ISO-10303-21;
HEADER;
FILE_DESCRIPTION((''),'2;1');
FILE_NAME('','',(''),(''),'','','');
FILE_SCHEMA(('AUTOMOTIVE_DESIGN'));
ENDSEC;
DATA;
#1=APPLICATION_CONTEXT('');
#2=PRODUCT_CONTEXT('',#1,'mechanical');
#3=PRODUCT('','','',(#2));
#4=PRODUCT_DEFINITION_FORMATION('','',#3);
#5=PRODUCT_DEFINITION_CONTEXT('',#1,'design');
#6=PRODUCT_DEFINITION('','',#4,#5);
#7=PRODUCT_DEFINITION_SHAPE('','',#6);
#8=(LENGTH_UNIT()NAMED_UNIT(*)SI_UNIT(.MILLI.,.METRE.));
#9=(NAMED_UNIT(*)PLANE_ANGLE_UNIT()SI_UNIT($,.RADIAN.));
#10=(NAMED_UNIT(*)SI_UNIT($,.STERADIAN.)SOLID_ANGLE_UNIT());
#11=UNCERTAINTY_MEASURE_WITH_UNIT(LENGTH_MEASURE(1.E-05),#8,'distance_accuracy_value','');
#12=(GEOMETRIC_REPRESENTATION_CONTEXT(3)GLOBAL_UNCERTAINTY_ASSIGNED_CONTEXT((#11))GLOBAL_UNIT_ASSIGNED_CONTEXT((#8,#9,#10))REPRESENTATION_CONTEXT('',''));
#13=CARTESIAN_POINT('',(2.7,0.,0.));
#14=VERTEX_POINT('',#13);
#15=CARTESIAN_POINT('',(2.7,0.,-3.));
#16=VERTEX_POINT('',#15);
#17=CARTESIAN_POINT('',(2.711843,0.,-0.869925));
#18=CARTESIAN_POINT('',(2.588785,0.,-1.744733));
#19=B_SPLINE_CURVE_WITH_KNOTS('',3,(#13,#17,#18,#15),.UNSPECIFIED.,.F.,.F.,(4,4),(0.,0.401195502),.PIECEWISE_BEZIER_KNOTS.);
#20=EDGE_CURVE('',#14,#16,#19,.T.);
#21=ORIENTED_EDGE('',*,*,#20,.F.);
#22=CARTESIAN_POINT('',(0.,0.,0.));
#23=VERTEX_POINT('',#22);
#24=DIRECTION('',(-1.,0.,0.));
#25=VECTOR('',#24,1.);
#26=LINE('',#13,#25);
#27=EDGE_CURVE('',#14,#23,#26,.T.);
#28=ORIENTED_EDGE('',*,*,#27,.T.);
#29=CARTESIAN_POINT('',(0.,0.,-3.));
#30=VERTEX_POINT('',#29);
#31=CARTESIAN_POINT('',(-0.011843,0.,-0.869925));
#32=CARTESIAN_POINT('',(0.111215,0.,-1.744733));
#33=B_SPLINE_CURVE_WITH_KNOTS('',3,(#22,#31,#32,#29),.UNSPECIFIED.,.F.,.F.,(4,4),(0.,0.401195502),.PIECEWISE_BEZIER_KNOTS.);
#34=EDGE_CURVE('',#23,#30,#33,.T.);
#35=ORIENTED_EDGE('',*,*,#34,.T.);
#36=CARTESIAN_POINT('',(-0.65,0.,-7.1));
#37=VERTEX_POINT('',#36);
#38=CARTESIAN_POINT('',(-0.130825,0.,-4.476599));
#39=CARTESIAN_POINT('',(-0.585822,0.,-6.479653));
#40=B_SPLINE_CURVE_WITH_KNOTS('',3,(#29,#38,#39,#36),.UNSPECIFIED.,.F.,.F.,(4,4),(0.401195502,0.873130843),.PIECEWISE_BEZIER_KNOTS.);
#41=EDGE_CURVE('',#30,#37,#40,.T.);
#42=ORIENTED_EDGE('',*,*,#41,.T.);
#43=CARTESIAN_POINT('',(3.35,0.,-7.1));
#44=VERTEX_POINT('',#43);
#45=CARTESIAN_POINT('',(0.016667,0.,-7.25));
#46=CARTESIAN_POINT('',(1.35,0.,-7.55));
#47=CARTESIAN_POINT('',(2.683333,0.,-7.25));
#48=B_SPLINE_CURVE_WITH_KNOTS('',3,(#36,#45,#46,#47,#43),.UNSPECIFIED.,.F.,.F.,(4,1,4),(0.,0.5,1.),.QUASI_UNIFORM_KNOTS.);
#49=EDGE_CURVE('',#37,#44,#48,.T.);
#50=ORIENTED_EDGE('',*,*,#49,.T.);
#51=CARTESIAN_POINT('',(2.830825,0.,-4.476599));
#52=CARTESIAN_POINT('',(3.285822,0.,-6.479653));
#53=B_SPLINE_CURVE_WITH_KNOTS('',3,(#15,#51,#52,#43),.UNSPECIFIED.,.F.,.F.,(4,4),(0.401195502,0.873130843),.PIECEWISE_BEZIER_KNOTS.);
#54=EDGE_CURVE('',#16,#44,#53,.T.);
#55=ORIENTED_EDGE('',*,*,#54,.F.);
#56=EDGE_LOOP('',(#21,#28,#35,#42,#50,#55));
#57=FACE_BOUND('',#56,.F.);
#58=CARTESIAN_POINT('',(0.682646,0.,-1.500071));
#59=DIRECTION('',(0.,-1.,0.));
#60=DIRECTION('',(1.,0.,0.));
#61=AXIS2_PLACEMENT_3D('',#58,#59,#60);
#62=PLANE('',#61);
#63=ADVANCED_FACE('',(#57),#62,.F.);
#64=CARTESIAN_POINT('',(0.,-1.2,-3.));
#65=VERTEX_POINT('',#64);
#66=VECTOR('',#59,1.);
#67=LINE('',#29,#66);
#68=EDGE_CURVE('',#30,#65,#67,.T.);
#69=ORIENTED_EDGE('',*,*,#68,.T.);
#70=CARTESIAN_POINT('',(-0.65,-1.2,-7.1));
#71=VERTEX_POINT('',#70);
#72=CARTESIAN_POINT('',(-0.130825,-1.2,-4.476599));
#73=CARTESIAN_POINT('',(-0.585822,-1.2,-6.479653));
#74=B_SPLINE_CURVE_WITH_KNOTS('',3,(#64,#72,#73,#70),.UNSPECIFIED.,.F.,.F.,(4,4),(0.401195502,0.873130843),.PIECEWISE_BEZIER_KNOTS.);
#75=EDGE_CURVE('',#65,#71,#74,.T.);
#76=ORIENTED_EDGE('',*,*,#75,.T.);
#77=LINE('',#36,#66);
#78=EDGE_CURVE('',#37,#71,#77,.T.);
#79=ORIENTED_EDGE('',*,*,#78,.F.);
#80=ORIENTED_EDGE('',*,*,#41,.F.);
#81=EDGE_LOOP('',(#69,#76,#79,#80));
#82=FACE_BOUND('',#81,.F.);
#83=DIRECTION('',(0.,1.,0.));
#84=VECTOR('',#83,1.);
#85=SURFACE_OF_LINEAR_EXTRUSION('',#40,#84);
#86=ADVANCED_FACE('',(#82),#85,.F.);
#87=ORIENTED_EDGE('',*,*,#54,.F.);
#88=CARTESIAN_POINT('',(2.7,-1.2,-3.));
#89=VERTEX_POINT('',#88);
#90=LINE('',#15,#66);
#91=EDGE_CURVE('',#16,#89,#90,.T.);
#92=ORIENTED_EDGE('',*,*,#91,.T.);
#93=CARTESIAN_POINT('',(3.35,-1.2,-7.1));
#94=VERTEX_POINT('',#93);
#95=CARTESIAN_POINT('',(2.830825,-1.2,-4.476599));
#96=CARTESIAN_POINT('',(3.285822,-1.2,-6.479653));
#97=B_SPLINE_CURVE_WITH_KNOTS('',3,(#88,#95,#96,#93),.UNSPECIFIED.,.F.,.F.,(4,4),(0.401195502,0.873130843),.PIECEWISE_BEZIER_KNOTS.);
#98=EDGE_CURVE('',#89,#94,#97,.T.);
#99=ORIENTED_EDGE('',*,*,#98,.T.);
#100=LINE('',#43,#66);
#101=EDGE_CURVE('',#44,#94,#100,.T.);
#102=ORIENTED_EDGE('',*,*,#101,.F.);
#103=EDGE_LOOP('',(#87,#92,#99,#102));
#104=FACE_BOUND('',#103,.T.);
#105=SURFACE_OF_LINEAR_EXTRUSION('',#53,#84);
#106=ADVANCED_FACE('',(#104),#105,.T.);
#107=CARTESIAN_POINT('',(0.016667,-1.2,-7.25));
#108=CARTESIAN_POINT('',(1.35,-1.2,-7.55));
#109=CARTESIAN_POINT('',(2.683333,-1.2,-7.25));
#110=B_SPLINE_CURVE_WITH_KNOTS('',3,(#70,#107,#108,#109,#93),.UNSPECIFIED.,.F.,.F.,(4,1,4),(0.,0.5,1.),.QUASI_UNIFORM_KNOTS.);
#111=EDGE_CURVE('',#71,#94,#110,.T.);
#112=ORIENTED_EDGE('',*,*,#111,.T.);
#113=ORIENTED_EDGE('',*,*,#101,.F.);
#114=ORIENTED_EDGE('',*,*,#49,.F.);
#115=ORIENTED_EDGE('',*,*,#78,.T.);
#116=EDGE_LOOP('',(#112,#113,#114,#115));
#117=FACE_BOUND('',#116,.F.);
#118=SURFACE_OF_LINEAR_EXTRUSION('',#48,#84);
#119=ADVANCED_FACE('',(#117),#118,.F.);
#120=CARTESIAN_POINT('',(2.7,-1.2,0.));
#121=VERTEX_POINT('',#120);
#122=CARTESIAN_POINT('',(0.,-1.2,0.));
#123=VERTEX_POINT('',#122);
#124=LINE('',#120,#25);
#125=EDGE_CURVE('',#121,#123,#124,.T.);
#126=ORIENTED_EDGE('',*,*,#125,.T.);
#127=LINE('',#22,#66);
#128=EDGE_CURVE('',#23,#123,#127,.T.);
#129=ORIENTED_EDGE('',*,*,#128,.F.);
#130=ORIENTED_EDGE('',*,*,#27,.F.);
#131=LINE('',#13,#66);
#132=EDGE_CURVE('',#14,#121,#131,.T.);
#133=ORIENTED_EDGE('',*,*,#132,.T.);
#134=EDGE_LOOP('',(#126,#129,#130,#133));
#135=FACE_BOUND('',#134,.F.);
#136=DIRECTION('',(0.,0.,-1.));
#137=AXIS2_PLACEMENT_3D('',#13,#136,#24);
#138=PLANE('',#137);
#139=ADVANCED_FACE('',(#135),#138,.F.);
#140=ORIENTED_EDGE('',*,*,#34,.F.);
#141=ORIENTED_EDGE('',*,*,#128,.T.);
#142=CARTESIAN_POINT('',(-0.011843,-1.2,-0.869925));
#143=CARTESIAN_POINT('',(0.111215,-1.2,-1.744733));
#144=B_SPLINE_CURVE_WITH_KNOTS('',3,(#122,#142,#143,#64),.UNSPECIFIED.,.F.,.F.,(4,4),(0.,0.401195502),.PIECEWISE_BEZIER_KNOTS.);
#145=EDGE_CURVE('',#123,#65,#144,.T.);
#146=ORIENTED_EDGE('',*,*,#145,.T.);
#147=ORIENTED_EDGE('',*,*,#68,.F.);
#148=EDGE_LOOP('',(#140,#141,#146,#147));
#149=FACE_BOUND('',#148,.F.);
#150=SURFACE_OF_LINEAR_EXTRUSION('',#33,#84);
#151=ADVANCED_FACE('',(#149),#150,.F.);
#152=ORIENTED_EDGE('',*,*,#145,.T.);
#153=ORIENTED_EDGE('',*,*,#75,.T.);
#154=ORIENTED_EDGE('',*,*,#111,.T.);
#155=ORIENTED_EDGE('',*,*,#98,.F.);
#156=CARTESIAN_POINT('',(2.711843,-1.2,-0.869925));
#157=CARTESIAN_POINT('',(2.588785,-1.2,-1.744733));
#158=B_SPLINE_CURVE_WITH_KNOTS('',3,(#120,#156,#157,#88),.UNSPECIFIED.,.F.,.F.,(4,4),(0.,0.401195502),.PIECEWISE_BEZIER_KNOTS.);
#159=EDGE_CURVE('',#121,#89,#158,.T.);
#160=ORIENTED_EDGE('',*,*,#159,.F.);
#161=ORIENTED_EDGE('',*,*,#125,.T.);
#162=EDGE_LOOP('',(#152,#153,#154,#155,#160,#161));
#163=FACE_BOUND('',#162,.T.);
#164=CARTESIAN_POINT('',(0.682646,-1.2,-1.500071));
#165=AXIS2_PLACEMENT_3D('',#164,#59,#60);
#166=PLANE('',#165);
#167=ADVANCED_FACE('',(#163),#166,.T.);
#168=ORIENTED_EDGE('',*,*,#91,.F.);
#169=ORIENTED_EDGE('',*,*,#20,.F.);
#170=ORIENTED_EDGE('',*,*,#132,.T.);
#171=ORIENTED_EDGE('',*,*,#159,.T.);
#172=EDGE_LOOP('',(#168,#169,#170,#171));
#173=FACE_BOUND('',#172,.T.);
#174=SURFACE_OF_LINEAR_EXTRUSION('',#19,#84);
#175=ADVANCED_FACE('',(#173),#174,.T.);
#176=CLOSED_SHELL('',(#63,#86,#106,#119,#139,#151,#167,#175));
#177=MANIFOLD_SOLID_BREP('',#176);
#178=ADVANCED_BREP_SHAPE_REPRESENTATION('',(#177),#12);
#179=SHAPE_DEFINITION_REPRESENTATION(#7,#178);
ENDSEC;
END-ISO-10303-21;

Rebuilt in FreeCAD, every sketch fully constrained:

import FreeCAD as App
import Part
import Sketcher

doc = App.newDocument("Part")
body = doc.addObject("PartDesign::Body", "Body")

# Sketch on XZ plane
sketch1 = body.newObject("Sketcher::SketchObject", "Sketch")
sketch1.AttachmentSupport = (doc.getObject("XZ_Plane"), [""])
sketch1.MapMode = "FlatFace"
sketch1.addGeometry([
    Part.BSplineCurve([App.Vector(0, 0, 0), App.Vector(-0.011843, -0.869925, 0), App.Vector(0.111215, -1.744733, 0), App.Vector(0, -3, 0)], [4, 4], [0, 0.401195502], False, 3, [1, 1, 1, 1], False),  # 0
    Part.BSplineCurve([App.Vector(0, -3, 0), App.Vector(-0.130825, -4.476599, 0), App.Vector(-0.585822, -6.479653, 0), App.Vector(-0.65, -7.1, 0)], [4, 4], [0.401195502, 0.873130843], False, 3, [1, 1, 1, 1], False),  # 1
    Part.BSplineCurve([App.Vector(-0.65, -7.1, 0), App.Vector(0.016667, -7.25, 0), App.Vector(1.35, -7.55, 0), App.Vector(2.683333, -7.25, 0), App.Vector(3.35, -7.1, 0)], [4, 1, 4], [0, 0.5, 1], False, 3, [1, 1, 1, 1, 1], False),  # 2
    Part.BSplineCurve([App.Vector(2.7, -3, 0), App.Vector(2.830825, -4.476599, 0), App.Vector(3.285822, -6.479653, 0), App.Vector(3.35, -7.1, 0)], [4, 4], [0.401195502, 0.873130843], False, 3, [1, 1, 1, 1], False),  # 3
    Part.BSplineCurve([App.Vector(2.7, 0, 0), App.Vector(2.711843, -0.869925, 0), App.Vector(2.588785, -1.744733, 0), App.Vector(2.7, -3, 0)], [4, 4], [0, 0.401195502], False, 3, [1, 1, 1, 1], False),  # 4
    Part.LineSegment(App.Vector(2.7, 0, 0), App.Vector(0, 0, 0)),  # 5
], False)
sketch1.addConstraint([
    Sketcher.Constraint("Block", 0),
    Sketcher.Constraint("Block", 1),
    Sketcher.Constraint("Block", 2),
    Sketcher.Constraint("Block", 3),
    Sketcher.Constraint("Block", 4),
    Sketcher.Constraint("Coincident", 4, 1, 5, 1),
    Sketcher.Constraint("Coincident", 5, 2, 0, 1),
])
pad1 = body.newObject("PartDesign::Pad", "Pad")
pad1.Profile = sketch1
pad1.Length = 1.2

doc.recompute()
